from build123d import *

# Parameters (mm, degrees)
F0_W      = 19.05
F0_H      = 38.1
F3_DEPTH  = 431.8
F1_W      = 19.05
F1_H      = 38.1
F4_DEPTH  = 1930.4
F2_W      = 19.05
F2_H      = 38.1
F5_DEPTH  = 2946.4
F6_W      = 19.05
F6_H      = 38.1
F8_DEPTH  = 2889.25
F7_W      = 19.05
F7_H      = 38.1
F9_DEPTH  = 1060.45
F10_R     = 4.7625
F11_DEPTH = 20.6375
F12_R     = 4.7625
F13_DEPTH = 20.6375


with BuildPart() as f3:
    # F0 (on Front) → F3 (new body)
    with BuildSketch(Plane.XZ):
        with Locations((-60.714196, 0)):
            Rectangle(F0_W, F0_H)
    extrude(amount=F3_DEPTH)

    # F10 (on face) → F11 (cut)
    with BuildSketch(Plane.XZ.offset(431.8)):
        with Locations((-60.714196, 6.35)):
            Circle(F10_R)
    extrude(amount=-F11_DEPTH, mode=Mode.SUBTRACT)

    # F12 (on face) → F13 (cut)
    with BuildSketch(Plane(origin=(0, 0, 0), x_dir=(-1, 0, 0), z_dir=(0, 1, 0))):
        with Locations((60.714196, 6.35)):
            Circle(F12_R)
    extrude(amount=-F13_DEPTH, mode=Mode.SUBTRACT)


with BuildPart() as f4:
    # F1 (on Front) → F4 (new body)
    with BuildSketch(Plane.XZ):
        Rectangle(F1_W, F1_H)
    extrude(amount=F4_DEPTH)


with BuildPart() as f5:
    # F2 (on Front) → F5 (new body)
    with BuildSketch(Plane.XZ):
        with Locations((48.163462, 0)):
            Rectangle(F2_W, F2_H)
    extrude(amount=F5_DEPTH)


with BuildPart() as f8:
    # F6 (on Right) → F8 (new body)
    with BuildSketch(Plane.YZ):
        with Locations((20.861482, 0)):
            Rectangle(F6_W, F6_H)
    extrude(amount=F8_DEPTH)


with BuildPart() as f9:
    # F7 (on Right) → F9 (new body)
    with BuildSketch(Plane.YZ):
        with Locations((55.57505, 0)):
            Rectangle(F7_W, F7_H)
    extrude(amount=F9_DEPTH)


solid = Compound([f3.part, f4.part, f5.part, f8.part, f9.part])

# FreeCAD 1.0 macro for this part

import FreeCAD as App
import Part
import Sketcher
Q = App.Units.Quantity

doc = App.newDocument("Part")
body = doc.addObject("PartDesign::Body", "Body")

sketch1 = doc.addObject("Sketcher::SketchObject", "Sketch")
body.addObject(sketch1)
sketch1.AttachmentSupport = (doc.XZ_Plane, [""])
sketch1.MapMode = "FlatFace"
sketch1.addGeometry([
    Part.LineSegment(App.Vector(-70, 19, 0), App.Vector(-70, -19, 0)),
    Part.LineSegment(App.Vector(-70, -19, 0), App.Vector(-51, -19, 0)),
    Part.LineSegment(App.Vector(-51, -19, 0), App.Vector(-51, 19, 0)),
    Part.LineSegment(App.Vector(-51, 19, 0), App.Vector(-70, 19, 0)),
], False)
sketch1.addConstraint([
    Sketcher.Constraint("Coincident", 0, 2, 1, 1),
    Sketcher.Constraint("Coincident", 1, 2, 2, 1),
    Sketcher.Constraint("Coincident", 2, 2, 3, 1),
    Sketcher.Constraint("Coincident", 3, 2, 0, 1),
    Sketcher.Constraint("Vertical", 0),
    Sketcher.Constraint("Horizontal", 1),
    Sketcher.Constraint("Vertical", 2),
    Sketcher.Constraint("Horizontal", 3),
    Sketcher.Constraint("DistanceY", 0, 2, 0, 1, Q("1.5 in")),
    Sketcher.Constraint("DistanceX", 1, 1, 1, 2, Q("0.75 in")),
    Sketcher.Constraint("DistanceY", 0, 2, -1, 1, Q("0.75 in")),
    Sketcher.Constraint("DistanceX", 0, 2, -1, 1, 70.239196),
])
pad1 = doc.addObject("PartDesign::Pad", "Pad")
body.addObject(pad1)
pad1.Profile = sketch1
pad1.Length = Q("17 in")

sketch2 = doc.addObject("Sketcher::SketchObject", "Sketch001")
body.addObject(sketch2)
sketch2.AttachmentSupport = (doc.XZ_Plane, [""])
sketch2.MapMode = "FlatFace"
sketch2.AttachmentOffset = App.Placement(App.Vector(0, 0, 17 * 25.4), App.Rotation())
sketch2.addGeometry(Part.Circle(App.Vector(-60.7, 6.3, 0), App.Vector(0, 0, 1), 4.8), False)
sketch2.addConstraint([
    Sketcher.Constraint("Diameter", 0, Q("0.375 in")),
    Sketcher.Constraint("DistanceY", -1, 1, 0, 3, Q("0.25 in")),
    Sketcher.Constraint("DistanceX", 0, 3, -1, 1, 60.714196),
])
pocket1 = doc.addObject("PartDesign::Pocket", "Pocket")
body.addObject(pocket1)
pocket1.Profile = sketch2
pocket1.Length = Q("0.8125 in")

sketch3 = doc.addObject("Sketcher::SketchObject", "Sketch002")
body.addObject(sketch3)
sketch3.AttachmentSupport = (doc.XZ_Plane, [""])
sketch3.MapMode = "FlatFace"
sketch3.addGeometry(Part.Circle(App.Vector(-60.7, 6.3, 0), App.Vector(0, 0, 1), 4.8), False)
sketch3.addConstraint([
    Sketcher.Constraint("Diameter", 0, Q("0.375 in")),
    Sketcher.Constraint("DistanceY", -1, 1, 0, 3, Q("0.25 in")),
    Sketcher.Constraint("DistanceX", 0, 3, -1, 1, 60.714196),
])
pocket2 = doc.addObject("PartDesign::Pocket", "Pocket001")
body.addObject(pocket2)
pocket2.Profile = sketch3
pocket2.Length = Q("0.8125 in")
pocket2.Reversed = True
body2 = doc.addObject("PartDesign::Body", "Body001")

sketch4 = doc.addObject("Sketcher::SketchObject", "Sketch003")
body2.addObject(sketch4)
sketch4.AttachmentSupport = (doc.getObject("XZ_Plane001"), [""])
sketch4.MapMode = "FlatFace"
sketch4.addGeometry([
    Part.LineSegment(App.Vector(-10, 19, 0), App.Vector(-10, -19, 0)),
    Part.LineSegment(App.Vector(-10, -19, 0), App.Vector(10, -19, 0)),
    Part.LineSegment(App.Vector(10, -19, 0), App.Vector(10, 19, 0)),
    Part.LineSegment(App.Vector(10, 19, 0), App.Vector(-10, 19, 0)),
], False)
sketch4.addConstraint([
    Sketcher.Constraint("Coincident", 0, 2, 1, 1),
    Sketcher.Constraint("Coincident", 1, 2, 2, 1),
    Sketcher.Constraint("Coincident", 2, 2, 3, 1),
    Sketcher.Constraint("Coincident", 3, 2, 0, 1),
    Sketcher.Constraint("Vertical", 0),
    Sketcher.Constraint("Horizontal", 1),
    Sketcher.Constraint("Vertical", 2),
    Sketcher.Constraint("Horizontal", 3),
    Sketcher.Constraint("Symmetric", 0, 2, 2, 2, -1, 1),
    Sketcher.Constraint("DistanceY", 0, 2, 0, 1, Q("1.5 in")),
    Sketcher.Constraint("DistanceX", 1, 1, 1, 2, Q("0.75 in")),
])
pad2 = doc.addObject("PartDesign::Pad", "Pad001")
body2.addObject(pad2)
pad2.Profile = sketch4
pad2.Length = Q("76 in")
body3 = doc.addObject("PartDesign::Body", "Body002")

sketch5 = doc.addObject("Sketcher::SketchObject", "Sketch004")
body3.addObject(sketch5)
sketch5.AttachmentSupport = (doc.getObject("XZ_Plane002"), [""])
sketch5.MapMode = "FlatFace"
sketch5.addGeometry([
    Part.LineSegment(App.Vector(39, 19, 0), App.Vector(39, -19, 0)),
    Part.LineSegment(App.Vector(39, -19, 0), App.Vector(58, -19, 0)),
    Part.LineSegment(App.Vector(58, -19, 0), App.Vector(58, 19, 0)),
    Part.LineSegment(App.Vector(58, 19, 0), App.Vector(39, 19, 0)),
], False)
sketch5.addConstraint([
    Sketcher.Constraint("Coincident", 0, 2, 1, 1),
    Sketcher.Constraint("Coincident", 1, 2, 2, 1),
    Sketcher.Constraint("Coincident", 2, 2, 3, 1),
    Sketcher.Constraint("Coincident", 3, 2, 0, 1),
    Sketcher.Constraint("Vertical", 0),
    Sketcher.Constraint("Horizontal", 1),
    Sketcher.Constraint("Vertical", 2),
    Sketcher.Constraint("Horizontal", 3),
    Sketcher.Constraint("DistanceY", 0, 2, 0, 1, Q("1.5 in")),
    Sketcher.Constraint("DistanceX", 1, 1, 1, 2, Q("0.75 in")),
    Sketcher.Constraint("DistanceY", 0, 2, -1, 1, Q("0.75 in")),
    Sketcher.Constraint("DistanceX", -1, 1, 0, 2, 38.638462),
])
pad3 = doc.addObject("PartDesign::Pad", "Pad002")
body3.addObject(pad3)
pad3.Profile = sketch5
pad3.Length = Q("116 in")
body4 = doc.addObject("PartDesign::Body", "Body003")

sketch6 = doc.addObject("Sketcher::SketchObject", "Sketch005")
body4.addObject(sketch6)
sketch6.AttachmentSupport = (doc.getObject("YZ_Plane003"), [""])
sketch6.MapMode = "FlatFace"
sketch6.addGeometry([
    Part.LineSegment(App.Vector(11, 19, 0), App.Vector(11, -19, 0)),
    Part.LineSegment(App.Vector(11, -19, 0), App.Vector(30, -19, 0)),
    Part.LineSegment(App.Vector(30, -19, 0), App.Vector(30, 19, 0)),
    Part.LineSegment(App.Vector(30, 19, 0), App.Vector(11, 19, 0)),
], False)
sketch6.addConstraint([
    Sketcher.Constraint("Coincident", 0, 2, 1, 1),
    Sketcher.Constraint("Coincident", 1, 2, 2, 1),
    Sketcher.Constraint("Coincident", 2, 2, 3, 1),
    Sketcher.Constraint("Coincident", 3, 2, 0, 1),
    Sketcher.Constraint("Vertical", 0),
    Sketcher.Constraint("Horizontal", 1),
    Sketcher.Constraint("Vertical", 2),
    Sketcher.Constraint("Horizontal", 3),
    Sketcher.Constraint("DistanceY", 0, 2, 0, 1, Q("1.5 in")),
    Sketcher.Constraint("DistanceX", 1, 1, 1, 2, Q("0.75 in")),
    Sketcher.Constraint("DistanceY", 0, 2, -1, 1, Q("0.75 in")),
    Sketcher.Constraint("DistanceX", -1, 1, 0, 2, 11.336482),
])
pad4 = doc.addObject("PartDesign::Pad", "Pad003")
body4.addObject(pad4)
pad4.Profile = sketch6
pad4.Length = Q("113.75 in")
body5 = doc.addObject("PartDesign::Body", "Body004")

sketch7 = doc.addObject("Sketcher::SketchObject", "Sketch006")
body5.addObject(sketch7)
sketch7.AttachmentSupport = (doc.getObject("YZ_Plane004"), [""])
sketch7.MapMode = "FlatFace"
sketch7.addGeometry([
    Part.LineSegment(App.Vector(46, 19, 0), App.Vector(46, -19, 0)),
    Part.LineSegment(App.Vector(46, -19, 0), App.Vector(65, -19, 0)),
    Part.LineSegment(App.Vector(65, -19, 0), App.Vector(65, 19, 0)),
    Part.LineSegment(App.Vector(65, 19, 0), App.Vector(46, 19, 0)),
], False)
sketch7.addConstraint([
    Sketcher.Constraint("Coincident", 0, 2, 1, 1),
    Sketcher.Constraint("Coincident", 1, 2, 2, 1),
    Sketcher.Constraint("Coincident", 2, 2, 3, 1),
    Sketcher.Constraint("Coincident", 3, 2, 0, 1),
    Sketcher.Constraint("Vertical", 0),
    Sketcher.Constraint("Horizontal", 1),
    Sketcher.Constraint("Vertical", 2),
    Sketcher.Constraint("Horizontal", 3),
    Sketcher.Constraint("DistanceY", 0, 2, 0, 1, Q("1.5 in")),
    Sketcher.Constraint("DistanceX", 1, 1, 1, 2, Q("0.75 in")),
    Sketcher.Constraint("DistanceY", 0, 2, -1, 1, Q("0.75 in")),
    Sketcher.Constraint("DistanceX", -1, 1, 0, 2, 46.05005),
])
pad5 = doc.addObject("PartDesign::Pad", "Pad004")
body5.addObject(pad5)
pad5.Profile = sketch7
pad5.Length = Q("41.75 in")

doc.recompute()
